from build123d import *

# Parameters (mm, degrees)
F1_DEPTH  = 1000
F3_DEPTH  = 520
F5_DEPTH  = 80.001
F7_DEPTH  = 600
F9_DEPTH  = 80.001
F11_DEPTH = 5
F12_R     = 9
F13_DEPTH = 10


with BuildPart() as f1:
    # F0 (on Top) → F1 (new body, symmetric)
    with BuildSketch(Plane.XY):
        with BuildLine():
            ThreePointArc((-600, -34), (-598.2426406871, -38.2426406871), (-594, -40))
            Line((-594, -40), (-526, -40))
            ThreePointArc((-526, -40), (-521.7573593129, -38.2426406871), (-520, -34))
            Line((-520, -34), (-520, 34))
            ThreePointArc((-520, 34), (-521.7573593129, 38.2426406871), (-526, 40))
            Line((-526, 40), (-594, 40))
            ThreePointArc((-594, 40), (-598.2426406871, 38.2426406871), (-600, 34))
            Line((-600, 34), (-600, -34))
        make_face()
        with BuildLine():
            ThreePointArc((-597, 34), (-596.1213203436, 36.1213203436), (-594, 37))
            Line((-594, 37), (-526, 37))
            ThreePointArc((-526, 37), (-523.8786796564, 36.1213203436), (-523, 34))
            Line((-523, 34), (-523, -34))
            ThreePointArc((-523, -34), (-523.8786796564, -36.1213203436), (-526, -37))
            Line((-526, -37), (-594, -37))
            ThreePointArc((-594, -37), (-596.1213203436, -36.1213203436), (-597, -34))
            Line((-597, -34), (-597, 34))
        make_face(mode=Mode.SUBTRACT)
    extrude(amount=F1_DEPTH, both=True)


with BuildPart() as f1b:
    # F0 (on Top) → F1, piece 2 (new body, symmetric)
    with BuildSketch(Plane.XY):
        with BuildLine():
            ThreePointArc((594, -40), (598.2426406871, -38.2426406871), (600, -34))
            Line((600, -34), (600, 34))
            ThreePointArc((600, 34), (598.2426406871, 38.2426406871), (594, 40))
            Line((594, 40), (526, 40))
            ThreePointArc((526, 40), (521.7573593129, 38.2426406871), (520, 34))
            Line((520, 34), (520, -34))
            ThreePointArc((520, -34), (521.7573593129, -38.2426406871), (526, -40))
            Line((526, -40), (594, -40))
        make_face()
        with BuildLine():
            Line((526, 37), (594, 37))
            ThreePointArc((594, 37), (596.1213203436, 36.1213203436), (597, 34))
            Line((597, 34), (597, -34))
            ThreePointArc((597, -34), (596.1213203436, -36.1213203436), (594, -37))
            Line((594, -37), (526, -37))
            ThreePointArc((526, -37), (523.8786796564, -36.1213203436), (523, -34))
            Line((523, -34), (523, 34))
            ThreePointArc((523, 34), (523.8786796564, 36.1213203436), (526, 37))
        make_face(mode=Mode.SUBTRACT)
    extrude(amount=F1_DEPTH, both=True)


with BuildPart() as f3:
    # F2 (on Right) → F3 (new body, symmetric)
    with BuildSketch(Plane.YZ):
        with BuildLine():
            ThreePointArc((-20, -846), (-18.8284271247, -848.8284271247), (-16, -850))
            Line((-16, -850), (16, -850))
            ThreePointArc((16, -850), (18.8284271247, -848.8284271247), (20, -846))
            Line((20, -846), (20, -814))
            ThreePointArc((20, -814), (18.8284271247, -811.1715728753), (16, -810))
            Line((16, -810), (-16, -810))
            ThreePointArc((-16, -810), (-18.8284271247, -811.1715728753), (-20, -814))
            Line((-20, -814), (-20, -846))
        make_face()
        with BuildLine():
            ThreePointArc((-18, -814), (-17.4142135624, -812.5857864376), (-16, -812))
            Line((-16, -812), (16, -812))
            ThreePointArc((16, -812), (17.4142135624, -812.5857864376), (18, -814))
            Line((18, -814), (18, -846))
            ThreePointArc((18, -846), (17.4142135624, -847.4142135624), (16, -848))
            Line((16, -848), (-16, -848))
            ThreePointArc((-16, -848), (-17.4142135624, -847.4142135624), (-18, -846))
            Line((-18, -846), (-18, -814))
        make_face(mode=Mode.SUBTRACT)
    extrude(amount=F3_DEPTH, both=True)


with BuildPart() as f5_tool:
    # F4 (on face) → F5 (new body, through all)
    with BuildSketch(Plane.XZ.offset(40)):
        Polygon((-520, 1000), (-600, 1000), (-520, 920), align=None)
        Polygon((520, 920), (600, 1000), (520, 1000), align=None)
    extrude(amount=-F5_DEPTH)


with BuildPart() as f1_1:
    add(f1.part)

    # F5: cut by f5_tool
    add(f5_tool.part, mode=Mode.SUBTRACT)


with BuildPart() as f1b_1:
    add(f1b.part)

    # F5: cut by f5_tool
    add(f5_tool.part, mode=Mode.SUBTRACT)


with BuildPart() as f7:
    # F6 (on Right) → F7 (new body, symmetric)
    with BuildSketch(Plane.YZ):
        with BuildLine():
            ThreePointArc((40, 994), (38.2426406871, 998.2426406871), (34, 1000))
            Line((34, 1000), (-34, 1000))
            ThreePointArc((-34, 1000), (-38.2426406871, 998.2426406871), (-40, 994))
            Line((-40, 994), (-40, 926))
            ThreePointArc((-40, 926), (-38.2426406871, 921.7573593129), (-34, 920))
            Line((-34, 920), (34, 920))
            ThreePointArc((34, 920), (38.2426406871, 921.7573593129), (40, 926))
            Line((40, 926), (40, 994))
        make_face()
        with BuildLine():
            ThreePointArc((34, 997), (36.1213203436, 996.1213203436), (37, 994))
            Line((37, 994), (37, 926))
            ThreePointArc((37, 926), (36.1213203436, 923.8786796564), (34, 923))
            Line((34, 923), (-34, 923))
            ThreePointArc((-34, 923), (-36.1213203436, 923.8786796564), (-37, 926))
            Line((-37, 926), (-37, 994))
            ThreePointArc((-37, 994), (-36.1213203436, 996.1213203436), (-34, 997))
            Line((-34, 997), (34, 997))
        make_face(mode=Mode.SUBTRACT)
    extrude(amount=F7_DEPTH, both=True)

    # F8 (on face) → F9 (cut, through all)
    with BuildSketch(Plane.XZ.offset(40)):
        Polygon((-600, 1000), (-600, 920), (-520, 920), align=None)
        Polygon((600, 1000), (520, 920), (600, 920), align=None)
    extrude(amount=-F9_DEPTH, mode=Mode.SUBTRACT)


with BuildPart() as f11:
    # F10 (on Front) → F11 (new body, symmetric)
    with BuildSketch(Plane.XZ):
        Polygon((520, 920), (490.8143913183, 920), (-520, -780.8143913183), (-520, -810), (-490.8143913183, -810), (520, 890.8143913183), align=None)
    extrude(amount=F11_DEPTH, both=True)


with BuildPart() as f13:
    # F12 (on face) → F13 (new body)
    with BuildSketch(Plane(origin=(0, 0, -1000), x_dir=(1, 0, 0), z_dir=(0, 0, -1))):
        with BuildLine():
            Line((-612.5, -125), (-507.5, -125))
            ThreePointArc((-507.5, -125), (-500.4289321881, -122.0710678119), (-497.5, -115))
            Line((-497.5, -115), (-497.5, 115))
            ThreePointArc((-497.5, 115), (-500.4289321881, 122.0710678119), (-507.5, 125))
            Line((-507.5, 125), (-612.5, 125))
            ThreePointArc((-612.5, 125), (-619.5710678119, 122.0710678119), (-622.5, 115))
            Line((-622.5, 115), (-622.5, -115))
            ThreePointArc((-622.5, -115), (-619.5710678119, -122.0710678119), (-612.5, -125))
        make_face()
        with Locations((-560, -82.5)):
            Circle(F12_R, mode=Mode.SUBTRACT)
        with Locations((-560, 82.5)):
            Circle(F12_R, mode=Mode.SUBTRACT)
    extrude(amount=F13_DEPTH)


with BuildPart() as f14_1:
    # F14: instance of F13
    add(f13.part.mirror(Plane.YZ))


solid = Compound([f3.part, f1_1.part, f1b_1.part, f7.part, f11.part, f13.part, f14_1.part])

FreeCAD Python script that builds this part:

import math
import FreeCAD as App
import Part
import Sketcher

doc = App.newDocument("Part")
body = doc.addObject("PartDesign::Body", "Body")

# Sketch on XY plane
sketch1 = body.newObject("Sketcher::SketchObject", "Sketch")
sketch1.AttachmentSupport = (doc.getObject("XY_Plane"), [""])
sketch1.MapMode = "FlatFace"
sketch1.addGeometry([
    Part.ArcOfCircle(Part.Circle(App.Vector(-594, -34, 0), App.Vector(0, 0, 1), 6), math.radians(180), math.radians(270)),  # 0
    Part.LineSegment(App.Vector(-594, -40, 0), App.Vector(-526, -40, 0)),  # 1
    Part.ArcOfCircle(Part.Circle(App.Vector(-526, -34, 0), App.Vector(0, 0, 1), 6), math.radians(-90), math.radians(0)),  # 2
    Part.LineSegment(App.Vector(-520, -34, 0), App.Vector(-520, 34, 0)),  # 3
    Part.ArcOfCircle(Part.Circle(App.Vector(-526, 34, 0), App.Vector(0, 0, 1), 6), math.radians(0), math.radians(90)),  # 4
    Part.LineSegment(App.Vector(-526, 40, 0), App.Vector(-594, 40, 0)),  # 5
    Part.ArcOfCircle(Part.Circle(App.Vector(-594, 34, 0), App.Vector(0, 0, 1), 6), math.radians(90), math.radians(180)),  # 6
    Part.LineSegment(App.Vector(-600, 34, 0), App.Vector(-600, -34, 0)),  # 7
    Part.LineSegment(App.Vector(-597, -34, 0), App.Vector(-597, 34, 0)),  # 8
    Part.ArcOfCircle(Part.Circle(App.Vector(-594, 34, 0), App.Vector(0, 0, 1), 3), math.radians(90), math.radians(180)),  # 9
    Part.LineSegment(App.Vector(-594, 37, 0), App.Vector(-526, 37, 0)),  # 10
    Part.ArcOfCircle(Part.Circle(App.Vector(-526, 34, 0), App.Vector(0, 0, 1), 3), math.radians(0), math.radians(90)),  # 11
    Part.LineSegment(App.Vector(-523, 34, 0), App.Vector(-523, -34, 0)),  # 12
    Part.ArcOfCircle(Part.Circle(App.Vector(-526, -34, 0), App.Vector(0, 0, 1), 3), math.radians(-90), math.radians(0)),  # 13
    Part.LineSegment(App.Vector(-526, -37, 0), App.Vector(-594, -37, 0)),  # 14
    Part.ArcOfCircle(Part.Circle(App.Vector(-594, -34, 0), App.Vector(0, 0, 1), 3), math.radians(180), math.radians(270)),  # 15
], False)
sketch1.addConstraint([
    Sketcher.Constraint("Tangent", 0, 2, 1, 1),
    Sketcher.Constraint("Tangent", 1, 2, 2, 1),
    Sketcher.Constraint("Tangent", 2, 2, 3, 1),
    Sketcher.Constraint("Tangent", 3, 2, 4, 1),
    Sketcher.Constraint("Tangent", 4, 2, 5, 1),
    Sketcher.Constraint("Tangent", 5, 2, 6, 1),
    Sketcher.Constraint("Tangent", 6, 2, 7, 1),
    Sketcher.Constraint("Tangent", 7, 2, 0, 1),
    Sketcher.Constraint("Tangent", 8, 2, 9, 2),
    Sketcher.Constraint("Tangent", 9, 1, 10, 1),
    Sketcher.Constraint("Tangent", 10, 2, 11, 2),
    Sketcher.Constraint("Tangent", 11, 1, 12, 1),
    Sketcher.Constraint("Tangent", 12, 2, 13, 2),
    Sketcher.Constraint("Tangent", 13, 1, 14, 1),
    Sketcher.Constraint("Tangent", 14, 2, 15, 2),
    Sketcher.Constraint("Tangent", 15, 1, 8, 1),
    Sketcher.Constraint("Horizontal", 1),
    Sketcher.Constraint("Vertical", 3),
    Sketcher.Constraint("Horizontal", 5),
    Sketcher.Constraint("Vertical", 7),
    Sketcher.Constraint("Vertical", 8),
    Sketcher.Constraint("Horizontal", 10),
    Sketcher.Constraint("Vertical", 12),
    Sketcher.Constraint("Horizontal", 14),
    Sketcher.Constraint("Coincident", 9, 3, 6, 3),
    Sketcher.Constraint("Coincident", 11, 3, 4, 3),
    Sketcher.Constraint("Coincident", 13, 3, 2, 3),
    Sketcher.Constraint("Equal", 0, 2),
    Sketcher.Constraint("Equal", 2, 4),
    Sketcher.Constraint("Equal", 4, 6),
    Sketcher.Constraint("Equal", 13, 15),
    Sketcher.Constraint("Equal", 14, 3),
    Sketcher.Constraint("Radius", 0, 6.0),
    Sketcher.Constraint("Radius", 9, 3.0),
    Sketcher.Constraint("DistanceX", 1, 1, 1, 2, 68.0),
    Sketcher.Constraint("DistanceX", 0, 3, -1, 1, 594.0),
    Sketcher.Constraint("DistanceY", 0, 3, -1, 1, 34.0),
])
pad1 = body.newObject("PartDesign::Pad", "Pad")
pad1.Profile = sketch1
pad1.Length = 2000
pad1.Midplane = True
body2 = doc.addObject("PartDesign::Body", "Body001")

# Sketch on XY plane
sketch2 = body2.newObject("Sketcher::SketchObject", "Sketch001")
sketch2.AttachmentSupport = (doc.getObject("XY_Plane001"), [""])
sketch2.MapMode = "FlatFace"
sketch2.addGeometry([
    Part.ArcOfCircle(Part.Circle(App.Vector(594, -34, 0), App.Vector(0, 0, 1), 6), math.radians(-90), math.radians(0)),  # 0
    Part.LineSegment(App.Vector(600, -34, 0), App.Vector(600, 34, 0)),  # 1
    Part.ArcOfCircle(Part.Circle(App.Vector(594, 34, 0), App.Vector(0, 0, 1), 6), math.radians(0), math.radians(90)),  # 2
    Part.LineSegment(App.Vector(594, 40, 0), App.Vector(526, 40, 0)),  # 3
    Part.ArcOfCircle(Part.Circle(App.Vector(526, 34, 0), App.Vector(0, 0, 1), 6), math.radians(90), math.radians(180)),  # 4
    Part.LineSegment(App.Vector(520, 34, 0), App.Vector(520, -34, 0)),  # 5
    Part.ArcOfCircle(Part.Circle(App.Vector(526, -34, 0), App.Vector(0, 0, 1), 6), math.radians(180), math.radians(270)),  # 6
    Part.LineSegment(App.Vector(526, -40, 0), App.Vector(594, -40, 0)),  # 7
    Part.ArcOfCircle(Part.Circle(App.Vector(526, 34, 0), App.Vector(0, 0, 1), 3), math.radians(90), math.radians(180)),  # 8
    Part.LineSegment(App.Vector(526, 37, 0), App.Vector(594, 37, 0)),  # 9
    Part.ArcOfCircle(Part.Circle(App.Vector(594, 34, 0), App.Vector(0, 0, 1), 3), math.radians(0), math.radians(90)),  # 10
    Part.LineSegment(App.Vector(597, 34, 0), App.Vector(597, -34, 0)),  # 11
    Part.ArcOfCircle(Part.Circle(App.Vector(594, -34, 0), App.Vector(0, 0, 1), 3), math.radians(-90), math.radians(0)),  # 12
    Part.LineSegment(App.Vector(594, -37, 0), App.Vector(526, -37, 0)),  # 13
    Part.ArcOfCircle(Part.Circle(App.Vector(526, -34, 0), App.Vector(0, 0, 1), 3), math.radians(180), math.radians(270)),  # 14
    Part.LineSegment(App.Vector(523, -34, 0), App.Vector(523, 34, 0)),  # 15
], False)
sketch2.addConstraint([
    Sketcher.Constraint("Tangent", 0, 2, 1, 1),
    Sketcher.Constraint("Tangent", 1, 2, 2, 1),
    Sketcher.Constraint("Tangent", 2, 2, 3, 1),
    Sketcher.Constraint("Tangent", 3, 2, 4, 1),
    Sketcher.Constraint("Tangent", 4, 2, 5, 1),
    Sketcher.Constraint("Tangent", 5, 2, 6, 1),
    Sketcher.Constraint("Tangent", 6, 2, 7, 1),
    Sketcher.Constraint("Tangent", 7, 2, 0, 1),
    Sketcher.Constraint("Tangent", 8, 1, 9, 1),
    Sketcher.Constraint("Tangent", 9, 2, 10, 2),
    Sketcher.Constraint("Tangent", 10, 1, 11, 1),
    Sketcher.Constraint("Tangent", 11, 2, 12, 2),
    Sketcher.Constraint("Tangent", 12, 1, 13, 1),
    Sketcher.Constraint("Tangent", 13, 2, 14, 2),
    Sketcher.Constraint("Tangent", 14, 1, 15, 1),
    Sketcher.Constraint("Tangent", 15, 2, 8, 2),
    Sketcher.Constraint("Vertical", 1),
    Sketcher.Constraint("Horizontal", 3),
    Sketcher.Constraint("Vertical", 5),
    Sketcher.Constraint("Horizontal", 7),
    Sketcher.Constraint("Horizontal", 9),
    Sketcher.Constraint("Vertical", 11),
    Sketcher.Constraint("Horizontal", 13),
    Sketcher.Constraint("Vertical", 15),
    Sketcher.Constraint("Coincident", 8, 3, 4, 3),
    Sketcher.Constraint("Coincident", 10, 3, 2, 3),
    Sketcher.Constraint("Coincident", 12, 3, 0, 3),
    Sketcher.Constraint("Equal", 0, 2),
    Sketcher.Constraint("Equal", 2, 4),
    Sketcher.Constraint("Equal", 4, 6),
    Sketcher.Constraint("Equal", 12, 14),
    Sketcher.Constraint("Equal", 13, 1),
    Sketcher.Constraint("Radius", 0, 6.0),
    Sketcher.Constraint("Radius", 8, 3.0),
    Sketcher.Constraint("DistanceX", 3, 2, 3, 1, 68.0),
    Sketcher.Constraint("DistanceX", -1, 1, 0, 3, 594.0),
    Sketcher.Constraint("DistanceY", 0, 3, -1, 1, 34.0),
])
pad2 = body2.newObject("PartDesign::Pad", "Pad001")
pad2.Profile = sketch2
pad2.Length = 2000
pad2.Midplane = True
body3 = doc.addObject("PartDesign::Body", "Body002")

# Sketch on YZ plane
sketch3 = body3.newObject("Sketcher::SketchObject", "Sketch002")
sketch3.AttachmentSupport = (doc.getObject("YZ_Plane002"), [""])
sketch3.MapMode = "FlatFace"
sketch3.addGeometry([
    Part.ArcOfCircle(Part.Circle(App.Vector(-16, -846, 0), App.Vector(0, 0, 1), 4), math.radians(180), math.radians(270)),  # 0
    Part.LineSegment(App.Vector(-16, -850, 0), App.Vector(16, -850, 0)),  # 1
    Part.ArcOfCircle(Part.Circle(App.Vector(16, -846, 0), App.Vector(0, 0, 1), 4), math.radians(-90), math.radians(0)),  # 2
    Part.LineSegment(App.Vector(20, -846, 0), App.Vector(20, -814, 0)),  # 3
    Part.ArcOfCircle(Part.Circle(App.Vector(16, -814, 0), App.Vector(0, 0, 1), 4), math.radians(0), math.radians(90)),  # 4
    Part.LineSegment(App.Vector(16, -810, 0), App.Vector(-16, -810, 0)),  # 5
    Part.ArcOfCircle(Part.Circle(App.Vector(-16, -814, 0), App.Vector(0, 0, 1), 4), math.radians(90), math.radians(180)),  # 6
    Part.LineSegment(App.Vector(-20, -814, 0), App.Vector(-20, -846, 0)),  # 7
    Part.LineSegment(App.Vector(-18, -846, 0), App.Vector(-18, -814, 0)),  # 8
    Part.ArcOfCircle(Part.Circle(App.Vector(-16, -814, 0), App.Vector(0, 0, 1), 2), math.radians(90), math.radians(180)),  # 9
    Part.LineSegment(App.Vector(-16, -812, 0), App.Vector(16, -812, 0)),  # 10
    Part.ArcOfCircle(Part.Circle(App.Vector(16, -814, 0), App.Vector(0, 0, 1), 2), math.radians(0), math.radians(90)),  # 11
    Part.LineSegment(App.Vector(18, -814, 0), App.Vector(18, -846, 0)),  # 12
    Part.ArcOfCircle(Part.Circle(App.Vector(16, -846, 0), App.Vector(0, 0, 1), 2), math.radians(-90), math.radians(0)),  # 13
    Part.LineSegment(App.Vector(16, -848, 0), App.Vector(-16, -848, 0)),  # 14
    Part.ArcOfCircle(Part.Circle(App.Vector(-16, -846, 0), App.Vector(0, 0, 1), 2), math.radians(180), math.radians(270)),  # 15
], False)
sketch3.addConstraint([
    Sketcher.Constraint("Tangent", 0, 2, 1, 1),
    Sketcher.Constraint("Tangent", 1, 2, 2, 1),
    Sketcher.Constraint("Tangent", 2, 2, 3, 1),
    Sketcher.Constraint("Tangent", 3, 2, 4, 1),
    Sketcher.Constraint("Tangent", 4, 2, 5, 1),
    Sketcher.Constraint("Tangent", 5, 2, 6, 1),
    Sketcher.Constraint("Tangent", 6, 2, 7, 1),
    Sketcher.Constraint("Tangent", 7, 2, 0, 1),
    Sketcher.Constraint("Tangent", 8, 2, 9, 2),
    Sketcher.Constraint("Tangent", 9, 1, 10, 1),
    Sketcher.Constraint("Tangent", 10, 2, 11, 2),
    Sketcher.Constraint("Tangent", 11, 1, 12, 1),
    Sketcher.Constraint("Tangent", 12, 2, 13, 2),
    Sketcher.Constraint("Tangent", 13, 1, 14, 1),
    Sketcher.Constraint("Tangent", 14, 2, 15, 2),
    Sketcher.Constraint("Tangent", 15, 1, 8, 1),
    Sketcher.Constraint("Horizontal", 1),
    Sketcher.Constraint("Vertical", 3),
    Sketcher.Constraint("Horizontal", 5),
    Sketcher.Constraint("Vertical", 7),
    Sketcher.Constraint("Vertical", 8),
    Sketcher.Constraint("Horizontal", 10),
    Sketcher.Constraint("Vertical", 12),
    Sketcher.Constraint("Horizontal", 14),
    Sketcher.Constraint("Coincident", 9, 3, 6, 3),
    Sketcher.Constraint("Coincident", 11, 3, 4, 3),
    Sketcher.Constraint("Coincident", 13, 3, 2, 3),
    Sketcher.Constraint("Equal", 0, 2),
    Sketcher.Constraint("Equal", 2, 4),
    Sketcher.Constraint("Equal", 4, 6),
    Sketcher.Constraint("Equal", 13, 15),
    Sketcher.Constraint("Equal", 14, 3),
    Sketcher.Constraint("Radius", 0, 4.0),
    Sketcher.Constraint("Radius", 9, 2.0),
    Sketcher.Constraint("DistanceX", 1, 1, 1, 2, 32.0),
    Sketcher.Constraint("DistanceX", 0, 3, -1, 1, 16.0),
    Sketcher.Constraint("DistanceY", 0, 3, -1, 1, 846.0),
])
pad3 = body3.newObject("PartDesign::Pad", "Pad002")
pad3.Profile = sketch3
pad3.Length = 1040
pad3.Midplane = True
body4 = doc.addObject("PartDesign::Body", "Body003")
body4.AllowCompound = True

# Sketch on XZ plane
sketch4 = body4.newObject("Sketcher::SketchObject", "Sketch003")
sketch4.AttachmentSupport = (doc.getObject("XZ_Plane003"), [""])
sketch4.MapMode = "FlatFace"
sketch4.AttachmentOffset = App.Placement(App.Vector(0, 0, 40), App.Rotation())
sketch4.addGeometry([
    Part.LineSegment(App.Vector(-520, 1000, 0), App.Vector(-600, 1000, 0)),  # 0
    Part.LineSegment(App.Vector(-600, 1000, 0), App.Vector(-520, 920, 0)),  # 1
    Part.LineSegment(App.Vector(-520, 920, 0), App.Vector(-520, 1000, 0)),  # 2
    Part.LineSegment(App.Vector(520, 920, 0), App.Vector(600, 1000, 0)),  # 3
    Part.LineSegment(App.Vector(600, 1000, 0), App.Vector(520, 1000, 0)),  # 4
    Part.LineSegment(App.Vector(520, 1000, 0), App.Vector(520, 920, 0)),  # 5
], False)
sketch4.addConstraint([
    Sketcher.Constraint("Coincident", 0, 2, 1, 1),
    Sketcher.Constraint("Coincident", 1, 2, 2, 1),
    Sketcher.Constraint("Coincident", 2, 2, 0, 1),
    Sketcher.Constraint("Coincident", 3, 2, 4, 1),
    Sketcher.Constraint("Coincident", 4, 2, 5, 1),
    Sketcher.Constraint("Coincident", 5, 2, 3, 1),
    Sketcher.Constraint("Horizontal", 0),
    Sketcher.Constraint("Vertical", 2),
    Sketcher.Constraint("Horizontal", 4),
    Sketcher.Constraint("Vertical", 5),
    Sketcher.Constraint("Symmetric", 0, 2, 3, 2, -2),
    Sketcher.Constraint("Symmetric", 1, 2, 5, 2, -2),
    Sketcher.Constraint("Perpendicular", 1, 3),
    Sketcher.Constraint("DistanceX", 0, 2, 0, 1, 80.0),
    Sketcher.Constraint("DistanceX", 0, 2, -1, 1, 600.0),
    Sketcher.Constraint("DistanceY", -1, 1, 0, 2, 1000.0),
])
pad4 = body4.newObject("PartDesign::Pad", "Pad003")
pad4.Profile = sketch4
pad4.Length = 80.001
pad4.Reversed = True
doc.recompute()

body5 = doc.addObject("PartDesign::Body", "Body004")
body5.BaseFeature = body4
boolean = body.newObject("PartDesign::Boolean", "Boolean")
boolean.Type = "Cut"
boolean.addObjects([body5])
doc.recompute()

boolean2 = body2.newObject("PartDesign::Boolean", "Boolean001")
boolean2.Type = "Cut"
boolean2.addObjects([body4])
body6 = doc.addObject("PartDesign::Body", "Body005")

# Sketch on YZ plane
sketch5 = body6.newObject("Sketcher::SketchObject", "Sketch004")
sketch5.AttachmentSupport = (doc.getObject("YZ_Plane005"), [""])
sketch5.MapMode = "FlatFace"
sketch5.addGeometry([
    Part.ArcOfCircle(Part.Circle(App.Vector(34, 994, 0), App.Vector(0, 0, 1), 6), math.radians(0), math.radians(90)),  # 0
    Part.LineSegment(App.Vector(34, 1000, 0), App.Vector(-34, 1000, 0)),  # 1
    Part.ArcOfCircle(Part.Circle(App.Vector(-34, 994, 0), App.Vector(0, 0, 1), 6), math.radians(90), math.radians(180)),  # 2
    Part.LineSegment(App.Vector(-40, 994, 0), App.Vector(-40, 926, 0)),  # 3
    Part.ArcOfCircle(Part.Circle(App.Vector(-34, 926, 0), App.Vector(0, 0, 1), 6), math.radians(180), math.radians(270)),  # 4
    Part.LineSegment(App.Vector(-34, 920, 0), App.Vector(34, 920, 0)),  # 5
    Part.ArcOfCircle(Part.Circle(App.Vector(34, 926, 0), App.Vector(0, 0, 1), 6), math.radians(-90), math.radians(0)),  # 6
    Part.LineSegment(App.Vector(40, 926, 0), App.Vector(40, 994, 0)),  # 7
    Part.LineSegment(App.Vector(-34, 997, 0), App.Vector(34, 997, 0)),  # 8
    Part.ArcOfCircle(Part.Circle(App.Vector(34, 994, 0), App.Vector(0, 0, 1), 3), math.radians(0), math.radians(90)),  # 9
    Part.LineSegment(App.Vector(37, 994, 0), App.Vector(37, 926, 0)),  # 10
    Part.ArcOfCircle(Part.Circle(App.Vector(34, 926, 0), App.Vector(0, 0, 1), 3), math.radians(-90), math.radians(0)),  # 11
    Part.LineSegment(App.Vector(34, 923, 0), App.Vector(-34, 923, 0)),  # 12
    Part.ArcOfCircle(Part.Circle(App.Vector(-34, 926, 0), App.Vector(0, 0, 1), 3), math.radians(180), math.radians(270)),  # 13
    Part.LineSegment(App.Vector(-37, 926, 0), App.Vector(-37, 994, 0)),  # 14
    Part.ArcOfCircle(Part.Circle(App.Vector(-34, 994, 0), App.Vector(0, 0, 1), 3), math.radians(90), math.radians(180)),  # 15
], False)
sketch5.addConstraint([
    Sketcher.Constraint("Tangent", 0, 2, 1, 1),
    Sketcher.Constraint("Tangent", 1, 2, 2, 1),
    Sketcher.Constraint("Tangent", 2, 2, 3, 1),
    Sketcher.Constraint("Tangent", 3, 2, 4, 1),
    Sketcher.Constraint("Tangent", 4, 2, 5, 1),
    Sketcher.Constraint("Tangent", 5, 2, 6, 1),
    Sketcher.Constraint("Tangent", 6, 2, 7, 1),
    Sketcher.Constraint("Tangent", 7, 2, 0, 1),
    Sketcher.Constraint("Tangent", 8, 2, 9, 2),
    Sketcher.Constraint("Tangent", 9, 1, 10, 1),
    Sketcher.Constraint("Tangent", 10, 2, 11, 2),
    Sketcher.Constraint("Tangent", 11, 1, 12, 1),
    Sketcher.Constraint("Tangent", 12, 2, 13, 2),
    Sketcher.Constraint("Tangent", 13, 1, 14, 1),
    Sketcher.Constraint("Tangent", 14, 2, 15, 2),
    Sketcher.Constraint("Tangent", 15, 1, 8, 1),
    Sketcher.Constraint("Horizontal", 1),
    Sketcher.Constraint("Vertical", 3),
    Sketcher.Constraint("Horizontal", 5),
    Sketcher.Constraint("Vertical", 7),
    Sketcher.Constraint("Horizontal", 8),
    Sketcher.Constraint("Vertical", 10),
    Sketcher.Constraint("Horizontal", 12),
    Sketcher.Constraint("Vertical", 14),
    Sketcher.Constraint("Coincident", 9, 3, 0, 3),
    Sketcher.Constraint("Coincident", 11, 3, 6, 3),
    Sketcher.Constraint("Coincident", 13, 3, 4, 3),
    Sketcher.Constraint("Equal", 0, 2),
    Sketcher.Constraint("Equal", 2, 4),
    Sketcher.Constraint("Equal", 4, 6),
    Sketcher.Constraint("Equal", 13, 15),
    Sketcher.Constraint("Equal", 12, 3),
    Sketcher.Constraint("Radius", 0, 6.0),
    Sketcher.Constraint("Radius", 9, 3.0),
    Sketcher.Constraint("DistanceX", 1, 2, 1, 1, 68.0),
    Sketcher.Constraint("DistanceX", -1, 1, 0, 3, 34.0),
    Sketcher.Constraint("DistanceY", -1, 1, 0, 3, 994.0),
])
pad5 = body6.newObject("PartDesign::Pad", "Pad004")
pad5.Profile = sketch5
pad5.Length = 1200
pad5.Midplane = True

# Sketch on XZ plane
sketch6 = body6.newObject("Sketcher::SketchObject", "Sketch005")
sketch6.AttachmentSupport = (doc.getObject("XZ_Plane005"), [""])
sketch6.MapMode = "FlatFace"
sketch6.AttachmentOffset = App.Placement(App.Vector(0, 0, 40), App.Rotation())
sketch6.addGeometry([
    Part.LineSegment(App.Vector(-600, 1000, 0), App.Vector(-600, 920, 0)),  # 0
    Part.LineSegment(App.Vector(-600, 920, 0), App.Vector(-520, 920, 0)),  # 1
    Part.LineSegment(App.Vector(-520, 920, 0), App.Vector(-600, 1000, 0)),  # 2
    Part.LineSegment(App.Vector(600, 1000, 0), App.Vector(520, 920, 0)),  # 3
    Part.LineSegment(App.Vector(520, 920, 0), App.Vector(600, 920, 0)),  # 4
    Part.LineSegment(App.Vector(600, 920, 0), App.Vector(600, 1000, 0)),  # 5
], False)
sketch6.addConstraint([
    Sketcher.Constraint("Coincident", 0, 2, 1, 1),
    Sketcher.Constraint("Coincident", 1, 2, 2, 1),
    Sketcher.Constraint("Coincident", 2, 2, 0, 1),
    Sketcher.Constraint("Coincident", 3, 2, 4, 1),
    Sketcher.Constraint("Coincident", 4, 2, 5, 1),
    Sketcher.Constraint("Coincident", 5, 2, 3, 1),
    Sketcher.Constraint("Vertical", 0),
    Sketcher.Constraint("Horizontal", 1),
    Sketcher.Constraint("Horizontal", 4),
    Sketcher.Constraint("Vertical", 5),
    Sketcher.Constraint("Symmetric", 1, 2, 3, 2, -2),
    Sketcher.Constraint("Symmetric", 2, 2, 5, 2, -2),
    Sketcher.Constraint("Perpendicular", 2, 3),
    Sketcher.Constraint("DistanceX", 1, 1, 1, 2, 80.0),
    Sketcher.Constraint("DistanceX", 0, 2, -1, 1, 600.0),
    Sketcher.Constraint("DistanceY", -1, 1, 0, 2, 920.0),
])
pocket1 = body6.newObject("PartDesign::Pocket", "Pocket")
pocket1.Profile = sketch6
pocket1.Type = "ThroughAll"
body7 = doc.addObject("PartDesign::Body", "Body006")

# Sketch on XZ plane
sketch7 = body7.newObject("Sketcher::SketchObject", "Sketch006")
sketch7.AttachmentSupport = (doc.getObject("XZ_Plane006"), [""])
sketch7.MapMode = "FlatFace"
sketch7.addGeometry([
    Part.LineSegment(App.Vector(520, 920, 0), App.Vector(491, 920, 0)),  # 0
    Part.LineSegment(App.Vector(491, 920, 0), App.Vector(-520, -781, 0)),  # 1
    Part.LineSegment(App.Vector(-520, -781, 0), App.Vector(-520, -810, 0)),  # 2
    Part.LineSegment(App.Vector(-520, -810, 0), App.Vector(-491, -810, 0)),  # 3
    Part.LineSegment(App.Vector(-491, -810, 0), App.Vector(520, 891, 0)),  # 4
    Part.LineSegment(App.Vector(520, 891, 0), App.Vector(520, 920, 0)),  # 5
], False)
sketch7.addConstraint([
    Sketcher.Constraint("Coincident", 0, 2, 1, 1),
    Sketcher.Constraint("Coincident", 1, 2, 2, 1),
    Sketcher.Constraint("Coincident", 2, 2, 3, 1),
    Sketcher.Constraint("Coincident", 3, 2, 4, 1),
    Sketcher.Constraint("Coincident", 4, 2, 5, 1),
    Sketcher.Constraint("Coincident", 5, 2, 0, 1),
    Sketcher.Constraint("Horizontal", 0),
    Sketcher.Constraint("Vertical", 2),
    Sketcher.Constraint("Horizontal", 3),
    Sketcher.Constraint("Vertical", 5),
    Sketcher.Constraint("Parallel", 1, 4),
    Sketcher.Constraint("Equal", 0, 3),
    Sketcher.Constraint("Equal", 3, 2),
    Sketcher.Constraint("DistanceY", -1, 1, 0, 2, 920.0),
    Sketcher.Constraint("DistanceX", 1, 2, -1, 1, 520.0),
    Sketcher.Constraint("DistanceY", 2, 2, -1, 1, 810.0),
    Sketcher.Constraint("DistanceX", -1, 1, 4, 2, 520.0),
    Sketcher.Constraint("DistanceX", 0, 2, 0, 1, 29.185609),
])
pad6 = body7.newObject("PartDesign::Pad", "Pad005")
pad6.Profile = sketch7
pad6.Length = 10
pad6.Midplane = True
body8 = doc.addObject("PartDesign::Body", "Body007")

# Sketch on XY plane
sketch8 = body8.newObject("Sketcher::SketchObject", "Sketch007")
sketch8.AttachmentSupport = (doc.getObject("XY_Plane007"), [""])
sketch8.MapMode = "FlatFace"
sketch8.AttachmentOffset = App.Placement(App.Vector(0, 0, -1000), App.Rotation())
sketch8.addGeometry([
    Part.LineSegment(App.Vector(-612, 125, 0), App.Vector(-508, 125, 0)),  # 0
    Part.ArcOfCircle(Part.Circle(App.Vector(-508, 115, 0), App.Vector(0, 0, 1), 10), math.radians(0), math.radians(90)),  # 1
    Part.LineSegment(App.Vector(-498, 115, 0), App.Vector(-498, -115, 0)),  # 2
    Part.ArcOfCircle(Part.Circle(App.Vector(-508, -115, 0), App.Vector(0, 0, 1), 10), math.radians(-90), math.radians(0)),  # 3
    Part.LineSegment(App.Vector(-508, -125, 0), App.Vector(-612, -125, 0)),  # 4
    Part.ArcOfCircle(Part.Circle(App.Vector(-612, -115, 0), App.Vector(0, 0, 1), 10), math.radians(180), math.radians(270)),  # 5
    Part.LineSegment(App.Vector(-622, -115, 0), App.Vector(-622, 115, 0)),  # 6
    Part.ArcOfCircle(Part.Circle(App.Vector(-612, 115, 0), App.Vector(0, 0, 1), 10), math.radians(90), math.radians(180)),  # 7
    Part.Circle(App.Vector(-560, 82, 0), App.Vector(0, 0, 1), 9),  # 8
    Part.Circle(App.Vector(-560, -82, 0), App.Vector(0, 0, 1), 9),  # 9
], False)
sketch8.addConstraint([
    Sketcher.Constraint("Tangent", 0, 2, 1, 2),
    Sketcher.Constraint("Tangent", 1, 1, 2, 1),
    Sketcher.Constraint("Tangent", 2, 2, 3, 2),
    Sketcher.Constraint("Tangent", 3, 1, 4, 1),
    Sketcher.Constraint("Tangent", 4, 2, 5, 2),
    Sketcher.Constraint("Tangent", 5, 1, 6, 1),
    Sketcher.Constraint("Tangent", 6, 2, 7, 2),
    Sketcher.Constraint("Tangent", 7, 1, 0, 1),
    Sketcher.Constraint("Horizontal", 0),
    Sketcher.Constraint("Vertical", 2),
    Sketcher.Constraint("Horizontal", 4),
    Sketcher.Constraint("Vertical", 6),
    Sketcher.Constraint("Equal", 1, 3),
    Sketcher.Constraint("Equal", 3, 5),
    Sketcher.Constraint("Equal", 5, 7),
    Sketcher.Constraint("Equal", 8, 9),
    Sketcher.Constraint("Symmetric", 8, 3, 9, 3, -1),
    Sketcher.Constraint("Diameter", 8, 18.0),
    Sketcher.Constraint("Radius", 1, 10.0),
    Sketcher.Constraint("DistanceX", 0, 1, 0, 2, 105.0),
    Sketcher.Constraint("DistanceY", 2, 2, 2, 1, 230.0),
    Sketcher.Constraint("DistanceY", -1, 1, 1, 3, 115.0),
    Sketcher.Constraint("DistanceX", 8, 3, -1, 1, 560.0),
    Sketcher.Constraint("DistanceY", 9, 3, 8, 3, 165.0),
    Sketcher.Constraint("DistanceX", 1, 3, -1, 1, 507.5),
])
pad7 = body8.newObject("PartDesign::Pad", "Pad006")
pad7.Profile = sketch8
pad7.Length = 10
pad7.Reversed = True
body9 = doc.addObject("PartDesign::Body", "Body008")
doc.recompute()

mirroring = doc.addObject("Part::Mirroring", "Mirroring")
mirroring.Source = body8
mirroring.Base = App.Vector(0, 0, 0)
mirroring.Normal = App.Vector(1, 0, 0)
body9.BaseFeature = mirroring
doc.recompute()
mirroring.Visibility = False

doc.recompute()
